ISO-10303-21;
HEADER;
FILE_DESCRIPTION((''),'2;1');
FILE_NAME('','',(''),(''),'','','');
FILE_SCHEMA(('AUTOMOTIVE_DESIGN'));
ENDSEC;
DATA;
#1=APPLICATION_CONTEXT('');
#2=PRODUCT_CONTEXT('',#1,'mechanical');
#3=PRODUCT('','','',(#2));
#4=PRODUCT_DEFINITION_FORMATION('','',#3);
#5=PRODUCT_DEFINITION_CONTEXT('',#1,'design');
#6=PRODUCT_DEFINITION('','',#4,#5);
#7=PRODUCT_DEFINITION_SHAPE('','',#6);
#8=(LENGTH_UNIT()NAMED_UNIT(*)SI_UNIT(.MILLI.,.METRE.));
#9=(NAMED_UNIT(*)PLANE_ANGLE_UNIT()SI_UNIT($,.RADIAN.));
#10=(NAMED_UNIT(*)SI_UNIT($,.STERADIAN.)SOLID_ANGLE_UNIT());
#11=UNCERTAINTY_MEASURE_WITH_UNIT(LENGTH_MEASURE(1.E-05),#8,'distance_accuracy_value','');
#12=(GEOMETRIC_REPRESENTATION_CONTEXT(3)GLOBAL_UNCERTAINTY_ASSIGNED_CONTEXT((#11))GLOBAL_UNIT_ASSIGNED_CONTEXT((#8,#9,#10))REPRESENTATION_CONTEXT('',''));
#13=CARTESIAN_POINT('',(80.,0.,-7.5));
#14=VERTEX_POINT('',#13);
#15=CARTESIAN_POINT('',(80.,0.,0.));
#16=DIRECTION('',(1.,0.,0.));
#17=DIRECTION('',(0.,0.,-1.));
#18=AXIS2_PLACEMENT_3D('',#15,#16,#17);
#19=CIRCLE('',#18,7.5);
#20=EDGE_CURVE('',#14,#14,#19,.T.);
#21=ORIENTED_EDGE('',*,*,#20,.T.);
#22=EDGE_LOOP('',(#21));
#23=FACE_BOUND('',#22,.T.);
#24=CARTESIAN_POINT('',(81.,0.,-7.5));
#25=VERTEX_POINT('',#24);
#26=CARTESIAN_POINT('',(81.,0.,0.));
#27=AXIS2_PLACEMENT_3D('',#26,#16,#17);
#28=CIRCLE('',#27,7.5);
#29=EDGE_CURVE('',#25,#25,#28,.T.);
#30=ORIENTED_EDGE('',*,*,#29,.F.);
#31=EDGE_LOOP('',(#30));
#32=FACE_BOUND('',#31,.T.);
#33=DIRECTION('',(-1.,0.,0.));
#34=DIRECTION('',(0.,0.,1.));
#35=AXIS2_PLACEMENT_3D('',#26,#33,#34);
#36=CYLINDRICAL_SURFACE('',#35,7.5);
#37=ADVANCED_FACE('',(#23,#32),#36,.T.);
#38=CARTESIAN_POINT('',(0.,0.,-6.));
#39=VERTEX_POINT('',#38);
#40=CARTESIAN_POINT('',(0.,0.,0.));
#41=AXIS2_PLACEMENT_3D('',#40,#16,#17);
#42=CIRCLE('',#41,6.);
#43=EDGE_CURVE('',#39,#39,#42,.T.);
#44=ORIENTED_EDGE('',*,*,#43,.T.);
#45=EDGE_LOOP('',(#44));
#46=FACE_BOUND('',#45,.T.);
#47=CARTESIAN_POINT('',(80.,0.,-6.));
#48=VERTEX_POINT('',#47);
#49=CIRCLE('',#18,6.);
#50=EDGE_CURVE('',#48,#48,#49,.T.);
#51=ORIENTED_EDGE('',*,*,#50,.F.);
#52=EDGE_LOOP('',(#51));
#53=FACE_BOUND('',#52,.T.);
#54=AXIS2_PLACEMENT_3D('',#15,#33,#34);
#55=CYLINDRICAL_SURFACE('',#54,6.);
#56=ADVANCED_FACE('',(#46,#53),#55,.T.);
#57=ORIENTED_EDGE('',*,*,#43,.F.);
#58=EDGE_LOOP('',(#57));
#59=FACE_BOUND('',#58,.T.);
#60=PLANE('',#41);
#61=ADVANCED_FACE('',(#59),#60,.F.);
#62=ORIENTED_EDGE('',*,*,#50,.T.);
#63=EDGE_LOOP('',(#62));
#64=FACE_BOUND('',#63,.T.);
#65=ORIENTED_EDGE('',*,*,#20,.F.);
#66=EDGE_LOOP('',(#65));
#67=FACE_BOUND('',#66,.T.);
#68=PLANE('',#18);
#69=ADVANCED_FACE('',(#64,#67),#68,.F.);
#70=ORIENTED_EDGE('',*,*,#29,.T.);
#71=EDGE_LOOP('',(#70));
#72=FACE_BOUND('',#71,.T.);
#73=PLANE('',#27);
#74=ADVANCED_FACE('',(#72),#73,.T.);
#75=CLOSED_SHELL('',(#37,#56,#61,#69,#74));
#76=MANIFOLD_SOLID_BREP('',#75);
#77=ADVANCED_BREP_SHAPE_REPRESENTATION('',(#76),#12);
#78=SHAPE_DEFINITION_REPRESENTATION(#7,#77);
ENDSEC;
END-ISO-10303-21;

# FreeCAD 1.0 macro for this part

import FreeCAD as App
import Part
import Sketcher

V = App.Vector

doc = App.newDocument("Part")
body = doc.addObject("PartDesign::Body", "Body")

# Sketch on YZ plane
sketch1 = body.newObject("Sketcher::SketchObject", "Sketch")
sketch1.AttachmentSupport = (doc.getObject("YZ_Plane"), [""])
sketch1.MapMode = "FlatFace"
sketch1.addGeometry(Part.Circle(V(0, 0, 0), V(0, 0, 1), 6), False)
sketch1.addConstraint(Sketcher.Constraint("Coincident", 0, 3, -1, 1))
sketch1.addConstraint(Sketcher.Constraint("Diameter", 0, 12.0))
pad1 = body.newObject("PartDesign::Pad", "Pad")
pad1.Profile = sketch1
pad1.Length = 80

# Sketch on YZ plane
sketch2 = body.newObject("Sketcher::SketchObject", "Sketch001")
sketch2.AttachmentSupport = (doc.getObject("YZ_Plane"), [""])
sketch2.MapMode = "FlatFace"
sketch2.AttachmentOffset = App.Placement(V(0, 0, 80), App.Rotation())
sketch2.addGeometry(Part.Circle(V(0, 0, 0), V(0, 0, 1), 7.5), False)
sketch2.addConstraint(Sketcher.Constraint("Coincident", 0, 3, -1, 1))
sketch2.addConstraint(Sketcher.Constraint("Diameter", 0, 15.0))
pad2 = body.newObject("PartDesign::Pad", "Pad001")
pad2.Profile = sketch2
pad2.Length = 1

doc.recompute()
